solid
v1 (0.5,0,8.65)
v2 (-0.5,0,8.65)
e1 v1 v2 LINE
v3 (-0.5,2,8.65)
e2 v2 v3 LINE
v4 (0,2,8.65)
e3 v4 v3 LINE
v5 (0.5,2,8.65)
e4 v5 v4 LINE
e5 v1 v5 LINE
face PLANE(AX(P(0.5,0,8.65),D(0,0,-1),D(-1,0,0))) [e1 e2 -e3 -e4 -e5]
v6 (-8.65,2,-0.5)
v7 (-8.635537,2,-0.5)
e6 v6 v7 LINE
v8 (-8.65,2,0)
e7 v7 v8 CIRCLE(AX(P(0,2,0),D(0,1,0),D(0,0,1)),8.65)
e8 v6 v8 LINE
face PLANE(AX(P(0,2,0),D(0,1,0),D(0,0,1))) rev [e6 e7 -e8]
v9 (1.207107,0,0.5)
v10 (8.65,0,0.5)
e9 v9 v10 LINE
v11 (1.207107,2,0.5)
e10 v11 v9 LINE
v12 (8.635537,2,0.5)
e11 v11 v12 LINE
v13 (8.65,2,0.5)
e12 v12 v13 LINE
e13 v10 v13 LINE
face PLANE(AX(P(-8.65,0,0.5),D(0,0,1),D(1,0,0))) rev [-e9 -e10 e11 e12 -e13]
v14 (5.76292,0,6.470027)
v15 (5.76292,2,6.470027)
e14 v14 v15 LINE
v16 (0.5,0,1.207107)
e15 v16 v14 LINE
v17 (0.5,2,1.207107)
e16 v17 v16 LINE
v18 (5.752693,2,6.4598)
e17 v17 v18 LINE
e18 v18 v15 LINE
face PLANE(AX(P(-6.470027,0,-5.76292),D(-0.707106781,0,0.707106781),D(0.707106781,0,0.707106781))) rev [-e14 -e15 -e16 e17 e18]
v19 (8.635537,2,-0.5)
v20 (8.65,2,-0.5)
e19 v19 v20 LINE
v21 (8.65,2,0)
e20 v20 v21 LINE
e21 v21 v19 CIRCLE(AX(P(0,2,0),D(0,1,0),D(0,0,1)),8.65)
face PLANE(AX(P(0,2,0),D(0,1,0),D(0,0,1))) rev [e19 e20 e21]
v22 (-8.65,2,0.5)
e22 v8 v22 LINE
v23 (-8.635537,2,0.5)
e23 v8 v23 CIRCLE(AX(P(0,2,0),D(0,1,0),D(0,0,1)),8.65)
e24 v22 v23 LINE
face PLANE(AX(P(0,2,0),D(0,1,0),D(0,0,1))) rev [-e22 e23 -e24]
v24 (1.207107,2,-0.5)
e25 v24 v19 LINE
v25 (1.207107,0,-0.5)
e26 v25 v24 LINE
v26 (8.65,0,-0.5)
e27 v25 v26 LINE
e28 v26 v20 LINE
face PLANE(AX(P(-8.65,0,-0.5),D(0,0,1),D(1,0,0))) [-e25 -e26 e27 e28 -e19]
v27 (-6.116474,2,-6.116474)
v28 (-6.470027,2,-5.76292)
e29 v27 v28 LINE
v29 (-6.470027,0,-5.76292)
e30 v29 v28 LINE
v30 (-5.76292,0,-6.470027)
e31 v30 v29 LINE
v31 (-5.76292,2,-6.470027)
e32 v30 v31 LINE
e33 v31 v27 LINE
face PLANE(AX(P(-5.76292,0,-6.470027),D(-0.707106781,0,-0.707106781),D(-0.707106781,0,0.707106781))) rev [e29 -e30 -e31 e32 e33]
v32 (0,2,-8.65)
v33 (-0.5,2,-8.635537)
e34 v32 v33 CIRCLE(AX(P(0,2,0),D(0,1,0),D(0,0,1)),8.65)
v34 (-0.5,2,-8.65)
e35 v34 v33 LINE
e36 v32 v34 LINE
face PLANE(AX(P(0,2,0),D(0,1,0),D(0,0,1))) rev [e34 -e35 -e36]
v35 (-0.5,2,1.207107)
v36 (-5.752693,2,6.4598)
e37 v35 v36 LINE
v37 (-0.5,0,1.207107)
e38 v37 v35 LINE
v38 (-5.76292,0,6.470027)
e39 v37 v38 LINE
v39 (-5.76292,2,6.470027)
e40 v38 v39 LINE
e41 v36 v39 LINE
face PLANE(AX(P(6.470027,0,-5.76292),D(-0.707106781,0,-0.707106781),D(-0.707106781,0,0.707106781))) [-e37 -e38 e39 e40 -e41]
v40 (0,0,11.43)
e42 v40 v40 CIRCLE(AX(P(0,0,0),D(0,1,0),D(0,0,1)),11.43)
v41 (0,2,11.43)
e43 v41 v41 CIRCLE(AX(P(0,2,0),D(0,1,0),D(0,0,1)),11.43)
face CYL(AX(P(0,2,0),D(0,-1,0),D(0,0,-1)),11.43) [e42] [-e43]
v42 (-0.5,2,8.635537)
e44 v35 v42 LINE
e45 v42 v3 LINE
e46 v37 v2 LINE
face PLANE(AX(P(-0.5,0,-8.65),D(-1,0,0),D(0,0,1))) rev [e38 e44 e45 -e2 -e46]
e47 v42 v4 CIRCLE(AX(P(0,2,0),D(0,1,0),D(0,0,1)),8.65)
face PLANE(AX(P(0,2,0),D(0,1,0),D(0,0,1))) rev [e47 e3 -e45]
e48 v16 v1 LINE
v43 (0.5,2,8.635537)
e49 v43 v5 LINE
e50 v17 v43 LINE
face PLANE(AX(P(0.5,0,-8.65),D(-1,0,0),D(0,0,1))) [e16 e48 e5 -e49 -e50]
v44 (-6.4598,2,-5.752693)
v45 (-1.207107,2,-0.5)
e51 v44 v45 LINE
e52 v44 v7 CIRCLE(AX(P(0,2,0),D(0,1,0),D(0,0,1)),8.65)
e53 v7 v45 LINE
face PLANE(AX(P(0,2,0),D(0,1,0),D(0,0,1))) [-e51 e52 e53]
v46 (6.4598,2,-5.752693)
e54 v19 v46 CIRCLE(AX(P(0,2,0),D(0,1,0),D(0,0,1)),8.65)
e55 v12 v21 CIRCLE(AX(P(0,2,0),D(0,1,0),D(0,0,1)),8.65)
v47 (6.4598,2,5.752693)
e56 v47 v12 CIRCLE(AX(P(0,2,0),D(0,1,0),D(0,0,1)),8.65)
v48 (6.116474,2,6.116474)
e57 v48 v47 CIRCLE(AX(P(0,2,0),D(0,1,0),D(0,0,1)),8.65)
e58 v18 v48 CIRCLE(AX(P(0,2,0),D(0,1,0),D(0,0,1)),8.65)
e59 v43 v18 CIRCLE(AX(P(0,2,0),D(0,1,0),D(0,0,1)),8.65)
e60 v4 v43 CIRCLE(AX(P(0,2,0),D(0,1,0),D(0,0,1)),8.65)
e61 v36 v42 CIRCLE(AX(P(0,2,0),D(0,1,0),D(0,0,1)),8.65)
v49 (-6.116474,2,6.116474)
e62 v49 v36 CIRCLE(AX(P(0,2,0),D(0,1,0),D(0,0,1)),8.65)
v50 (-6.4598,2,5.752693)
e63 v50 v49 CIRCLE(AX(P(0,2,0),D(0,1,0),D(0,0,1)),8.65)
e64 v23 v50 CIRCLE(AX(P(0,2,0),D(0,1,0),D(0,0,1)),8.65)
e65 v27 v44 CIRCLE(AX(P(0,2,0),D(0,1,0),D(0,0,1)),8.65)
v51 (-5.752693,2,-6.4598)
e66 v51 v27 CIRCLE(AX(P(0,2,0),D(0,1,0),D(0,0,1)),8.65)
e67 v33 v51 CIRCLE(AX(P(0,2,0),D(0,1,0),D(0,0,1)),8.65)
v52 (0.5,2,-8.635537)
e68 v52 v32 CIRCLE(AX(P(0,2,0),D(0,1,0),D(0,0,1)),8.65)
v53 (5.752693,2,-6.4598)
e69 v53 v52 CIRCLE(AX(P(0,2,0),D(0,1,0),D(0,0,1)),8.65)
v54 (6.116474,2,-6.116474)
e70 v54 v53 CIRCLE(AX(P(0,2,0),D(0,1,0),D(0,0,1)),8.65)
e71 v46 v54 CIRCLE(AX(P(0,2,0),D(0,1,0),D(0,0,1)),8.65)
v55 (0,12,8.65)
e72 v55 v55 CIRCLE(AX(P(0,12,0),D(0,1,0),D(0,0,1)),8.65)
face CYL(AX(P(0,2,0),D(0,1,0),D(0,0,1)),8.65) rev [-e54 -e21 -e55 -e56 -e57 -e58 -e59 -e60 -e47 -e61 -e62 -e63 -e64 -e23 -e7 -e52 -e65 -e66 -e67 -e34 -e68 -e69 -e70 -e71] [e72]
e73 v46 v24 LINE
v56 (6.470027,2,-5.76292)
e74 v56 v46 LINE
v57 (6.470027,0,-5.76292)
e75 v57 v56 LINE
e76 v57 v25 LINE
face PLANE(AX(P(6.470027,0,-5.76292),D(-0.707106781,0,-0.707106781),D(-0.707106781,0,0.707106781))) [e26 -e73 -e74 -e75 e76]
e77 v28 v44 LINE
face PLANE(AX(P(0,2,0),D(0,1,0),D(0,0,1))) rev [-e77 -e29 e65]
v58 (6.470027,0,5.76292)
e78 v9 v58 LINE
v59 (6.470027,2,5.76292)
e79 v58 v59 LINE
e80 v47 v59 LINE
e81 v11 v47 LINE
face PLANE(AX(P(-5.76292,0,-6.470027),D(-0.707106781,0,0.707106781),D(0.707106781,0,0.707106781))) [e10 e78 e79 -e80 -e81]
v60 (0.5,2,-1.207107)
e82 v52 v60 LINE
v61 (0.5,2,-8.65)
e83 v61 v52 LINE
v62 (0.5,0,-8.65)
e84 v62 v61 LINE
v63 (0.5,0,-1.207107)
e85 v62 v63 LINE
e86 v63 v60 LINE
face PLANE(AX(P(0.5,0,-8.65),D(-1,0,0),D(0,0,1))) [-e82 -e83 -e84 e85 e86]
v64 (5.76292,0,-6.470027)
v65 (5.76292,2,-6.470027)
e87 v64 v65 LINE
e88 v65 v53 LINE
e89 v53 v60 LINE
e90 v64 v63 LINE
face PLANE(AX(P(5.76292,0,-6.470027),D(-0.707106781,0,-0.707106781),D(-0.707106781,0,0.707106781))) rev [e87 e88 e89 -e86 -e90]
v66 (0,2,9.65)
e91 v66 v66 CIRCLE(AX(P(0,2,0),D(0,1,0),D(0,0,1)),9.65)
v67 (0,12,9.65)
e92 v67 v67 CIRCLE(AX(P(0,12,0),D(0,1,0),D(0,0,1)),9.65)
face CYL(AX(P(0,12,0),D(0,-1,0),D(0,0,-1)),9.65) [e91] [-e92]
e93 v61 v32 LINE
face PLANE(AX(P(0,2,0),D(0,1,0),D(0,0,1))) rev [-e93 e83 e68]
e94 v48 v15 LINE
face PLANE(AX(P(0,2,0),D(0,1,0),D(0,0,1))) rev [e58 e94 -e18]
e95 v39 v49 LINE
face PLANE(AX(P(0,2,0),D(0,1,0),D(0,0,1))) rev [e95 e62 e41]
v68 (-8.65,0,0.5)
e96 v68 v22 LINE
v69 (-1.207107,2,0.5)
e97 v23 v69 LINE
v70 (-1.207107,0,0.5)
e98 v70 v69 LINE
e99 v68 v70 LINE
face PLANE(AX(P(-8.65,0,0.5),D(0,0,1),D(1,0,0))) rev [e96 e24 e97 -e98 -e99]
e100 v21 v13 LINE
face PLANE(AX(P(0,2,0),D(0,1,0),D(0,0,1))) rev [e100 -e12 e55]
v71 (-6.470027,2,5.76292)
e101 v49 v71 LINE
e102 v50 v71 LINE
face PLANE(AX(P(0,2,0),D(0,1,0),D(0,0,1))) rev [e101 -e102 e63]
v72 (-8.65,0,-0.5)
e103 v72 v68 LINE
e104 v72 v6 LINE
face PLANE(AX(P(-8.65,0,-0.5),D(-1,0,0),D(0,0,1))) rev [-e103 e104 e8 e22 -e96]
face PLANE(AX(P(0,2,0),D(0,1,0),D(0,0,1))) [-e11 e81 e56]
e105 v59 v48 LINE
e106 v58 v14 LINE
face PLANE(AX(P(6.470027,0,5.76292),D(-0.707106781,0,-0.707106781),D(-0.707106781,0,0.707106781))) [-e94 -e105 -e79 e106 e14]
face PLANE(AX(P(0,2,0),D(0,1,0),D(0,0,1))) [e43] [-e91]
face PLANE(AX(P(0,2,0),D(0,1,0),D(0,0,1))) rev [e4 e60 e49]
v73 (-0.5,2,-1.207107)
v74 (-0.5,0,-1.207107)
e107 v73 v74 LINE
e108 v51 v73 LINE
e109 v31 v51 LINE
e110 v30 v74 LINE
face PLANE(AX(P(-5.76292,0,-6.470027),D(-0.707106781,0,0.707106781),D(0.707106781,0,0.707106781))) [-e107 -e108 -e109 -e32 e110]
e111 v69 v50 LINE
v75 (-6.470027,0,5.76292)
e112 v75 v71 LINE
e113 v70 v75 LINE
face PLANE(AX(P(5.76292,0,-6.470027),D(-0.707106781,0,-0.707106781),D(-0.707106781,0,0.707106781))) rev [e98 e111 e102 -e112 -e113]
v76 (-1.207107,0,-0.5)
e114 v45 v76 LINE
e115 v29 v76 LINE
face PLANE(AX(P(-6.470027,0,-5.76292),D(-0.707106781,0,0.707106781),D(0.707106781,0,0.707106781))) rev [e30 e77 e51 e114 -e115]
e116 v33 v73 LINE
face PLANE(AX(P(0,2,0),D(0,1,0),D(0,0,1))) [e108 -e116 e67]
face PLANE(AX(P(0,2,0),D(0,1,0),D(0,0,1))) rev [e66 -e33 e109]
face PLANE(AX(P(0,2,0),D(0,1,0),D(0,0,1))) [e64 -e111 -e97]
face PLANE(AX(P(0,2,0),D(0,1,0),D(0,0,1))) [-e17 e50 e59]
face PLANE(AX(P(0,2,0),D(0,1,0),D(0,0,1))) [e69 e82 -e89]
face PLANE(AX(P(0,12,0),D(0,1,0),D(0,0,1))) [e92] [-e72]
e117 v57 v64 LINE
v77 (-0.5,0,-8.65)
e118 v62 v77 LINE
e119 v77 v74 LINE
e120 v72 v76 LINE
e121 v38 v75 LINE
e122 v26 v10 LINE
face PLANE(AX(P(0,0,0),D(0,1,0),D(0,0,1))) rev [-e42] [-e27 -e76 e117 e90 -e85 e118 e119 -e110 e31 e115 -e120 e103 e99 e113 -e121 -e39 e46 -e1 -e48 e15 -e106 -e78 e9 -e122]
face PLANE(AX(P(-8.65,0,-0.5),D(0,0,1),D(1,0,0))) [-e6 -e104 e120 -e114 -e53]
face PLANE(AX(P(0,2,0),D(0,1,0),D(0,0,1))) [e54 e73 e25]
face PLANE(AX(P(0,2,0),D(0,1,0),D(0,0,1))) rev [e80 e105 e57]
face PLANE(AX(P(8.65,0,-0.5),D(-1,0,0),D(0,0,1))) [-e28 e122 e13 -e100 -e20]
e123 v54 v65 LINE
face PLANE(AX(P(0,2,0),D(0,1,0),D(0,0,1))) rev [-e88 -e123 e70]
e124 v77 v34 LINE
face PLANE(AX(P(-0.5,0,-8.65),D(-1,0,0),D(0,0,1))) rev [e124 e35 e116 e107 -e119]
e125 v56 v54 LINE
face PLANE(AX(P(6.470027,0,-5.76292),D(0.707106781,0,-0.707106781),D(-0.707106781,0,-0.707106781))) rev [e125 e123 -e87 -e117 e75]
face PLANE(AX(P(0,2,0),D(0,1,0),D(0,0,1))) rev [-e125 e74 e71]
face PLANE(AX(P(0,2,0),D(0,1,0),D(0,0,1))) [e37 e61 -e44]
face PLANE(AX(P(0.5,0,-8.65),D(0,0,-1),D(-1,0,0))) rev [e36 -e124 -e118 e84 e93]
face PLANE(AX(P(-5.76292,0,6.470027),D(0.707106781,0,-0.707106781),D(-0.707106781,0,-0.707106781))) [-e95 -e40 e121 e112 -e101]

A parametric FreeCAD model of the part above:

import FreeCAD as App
import Part
import Sketcher

V = App.Vector
Q = App.Units.Quantity

doc = App.newDocument("Part")
body = doc.addObject("PartDesign::Body", "Body")

# Sketch on XZ plane
sketch1 = body.newObject("Sketcher::SketchObject", "Sketch")
sketch1.AttachmentSupport = (doc.getObject("XZ_Plane"), [""])
sketch1.MapMode = "FlatFace"
sketch1.addGeometry(Part.Circle(V(0, 0, 0), V(0, 0, 1), 11), False)
sketch1.addConstraint([
    Sketcher.Constraint("Coincident", 0, 3, -1, 1),
    Sketcher.Constraint("Diameter", 0, Q("22.86 mm")),
])
pad1 = body.newObject("PartDesign::Pad", "Pad")
pad1.Profile = sketch1
pad1.Length = 2
pad1.Reversed = True

# Sketch on XZ plane
sketch2 = body.newObject("Sketcher::SketchObject", "Sketch001")
sketch2.AttachmentSupport = (doc.getObject("XZ_Plane"), [""])
sketch2.MapMode = "FlatFace"
sketch2.AttachmentOffset = App.Placement(V(0, 0, -2), App.Rotation())
sketch2.addGeometry([
    Part.LineSegment(V(-0.5, -8.7, 0), V(-0.5, -1.2, 0)),  # 0
    Part.LineSegment(V(-0.5, -1.2, 0), V(-5.8, -6.5, 0)),  # 1
    Part.LineSegment(V(-5.8, -6.5, 0), V(-6.5, -5.8, 0)),  # 2
    Part.LineSegment(V(-6.5, -5.8, 0), V(-1.2, -0.5, 0)),  # 3
    Part.LineSegment(V(-1.2, -0.5, 0), V(-8.7, -0.5, 0)),  # 4
    Part.LineSegment(V(-8.7, -0.5, 0), V(-8.7, 0.5, 0)),  # 5
    Part.LineSegment(V(-8.7, 0.5, 0), V(-1.2, 0.5, 0)),  # 6
    Part.LineSegment(V(-1.2, 0.5, 0), V(-6.5, 5.8, 0)),  # 7
    Part.LineSegment(V(-6.5, 5.8, 0), V(-5.8, 6.5, 0)),  # 8
    Part.LineSegment(V(-5.8, 6.5, 0), V(-0.5, 1.2, 0)),  # 9
    Part.LineSegment(V(-0.5, 1.2, 0), V(-0.5, 8.7, 0)),  # 10
    Part.LineSegment(V(-0.5, 8.7, 0), V(0.5, 8.7, 0)),  # 11
    Part.LineSegment(V(0.5, 8.7, 0), V(0.5, 1.2, 0)),  # 12
    Part.LineSegment(V(0.5, 1.2, 0), V(5.8, 6.5, 0)),  # 13
    Part.LineSegment(V(5.8, 6.5, 0), V(6.5, 5.8, 0)),  # 14
    Part.LineSegment(V(6.5, 5.8, 0), V(1.2, 0.5, 0)),  # 15
    Part.LineSegment(V(1.2, 0.5, 0), V(8.7, 0.5, 0)),  # 16
    Part.LineSegment(V(8.7, 0.5, 0), V(8.7, -0.5, 0)),  # 17
    Part.LineSegment(V(8.7, -0.5, 0), V(1.2, -0.5, 0)),  # 18
    Part.LineSegment(V(1.2, -0.5, 0), V(6.5, -5.8, 0)),  # 19
    Part.LineSegment(V(6.5, -5.8, 0), V(5.8, -6.5, 0)),  # 20
    Part.LineSegment(V(5.8, -6.5, 0), V(0.5, -1.2, 0)),  # 21
    Part.LineSegment(V(0.5, -1.2, 0), V(0.5, -8.7, 0)),  # 22
    Part.LineSegment(V(0.5, -8.7, 0), V(-0.5, -8.7, 0)),  # 23
], False)
sketch2.addConstraint([
    Sketcher.Constraint("Coincident", 0, 2, 1, 1),
    Sketcher.Constraint("Coincident", 1, 2, 2, 1),
    Sketcher.Constraint("Coincident", 2, 2, 3, 1),
    Sketcher.Constraint("Coincident", 3, 2, 4, 1),
    Sketcher.Constraint("Coincident", 4, 2, 5, 1),
    Sketcher.Constraint("Coincident", 5, 2, 6, 1),
    Sketcher.Constraint("Coincident", 6, 2, 7, 1),
    Sketcher.Constraint("Coincident", 7, 2, 8, 1),
    Sketcher.Constraint("Coincident", 8, 2, 9, 1),
    Sketcher.Constraint("Coincident", 9, 2, 10, 1),
    Sketcher.Constraint("Coincident", 10, 2, 11, 1),
    Sketcher.Constraint("Coincident", 11, 2, 12, 1),
    Sketcher.Constraint("Coincident", 12, 2, 13, 1),
    Sketcher.Constraint("Coincident", 13, 2, 14, 1),
    Sketcher.Constraint("Coincident", 14, 2, 15, 1),
    Sketcher.Constraint("Coincident", 15, 2, 16, 1),
    Sketcher.Constraint("Coincident", 16, 2, 17, 1),
    Sketcher.Constraint("Coincident", 17, 2, 18, 1),
    Sketcher.Constraint("Coincident", 18, 2, 19, 1),
    Sketcher.Constraint("Coincident", 19, 2, 20, 1),
    Sketcher.Constraint("Coincident", 20, 2, 21, 1),
    Sketcher.Constraint("Coincident", 21, 2, 22, 1),
    Sketcher.Constraint("Coincident", 22, 2, 23, 1),
    Sketcher.Constraint("Coincident", 23, 2, 0, 1),
    Sketcher.Constraint("Vertical", 0),
    Sketcher.Constraint("Horizontal", 4),
    Sketcher.Constraint("Vertical", 5),
    Sketcher.Constraint("Horizontal", 6),
    Sketcher.Constraint("Vertical", 10),
    Sketcher.Constraint("Horizontal", 11),
    Sketcher.Constraint("Vertical", 12),
    Sketcher.Constraint("Horizontal", 16),
    Sketcher.Constraint("Vertical", 17),
    Sketcher.Constraint("Horizontal", 18),
    Sketcher.Constraint("Vertical", 22),
    Sketcher.Constraint("Horizontal", 23),
    Sketcher.Constraint("Symmetric", 0, 2, 12, 2, -1, 1),
    Sketcher.Constraint("Symmetric", 1, 2, 13, 2, -1, 1),
    Sketcher.Constraint("Symmetric", 2, 2, 14, 2, -1, 1),
    Sketcher.Constraint("Symmetric", 3, 2, 15, 2, -1, 1),
    Sketcher.Constraint("Symmetric", 5, 2, 17, 2, -1, 1),
    Sketcher.Constraint("Symmetric", 7, 2, 19, 2, -1, 1),
    Sketcher.Constraint("Symmetric", 8, 2, 20, 2, -1, 1),
    Sketcher.Constraint("Symmetric", 9, 2, 21, 2, -1, 1),
    Sketcher.Constraint("Symmetric", 9, 2, 12, 2, -2),
    Sketcher.Constraint("Symmetric", 8, 2, 13, 2, -2),
    Sketcher.Constraint("Symmetric", 7, 2, 14, 2, -2),
    Sketcher.Constraint("Symmetric", 6, 2, 15, 2, -2),
    Sketcher.Constraint("Perpendicular", 1, 2),
    Sketcher.Constraint("Perpendicular", 2, 3),
    Sketcher.Constraint("Perpendicular", 3, 7),
    Sketcher.Constraint("Perpendicular", 15, 19),
    Sketcher.Constraint("Equal", 18, 0),
    Sketcher.Constraint("Equal", 23, 5),
    Sketcher.Constraint("Equal", 0, 10),
    Sketcher.Constraint("Equal", 1, 3),
    Sketcher.Constraint("DistanceX", 11, 1, 11, 2, Q("1 mm")),
    Sketcher.Constraint("Distance", 2, Q("1 mm")),
    Sketcher.Constraint("DistanceX", 4, 2, -1, 1, Q("8.65 mm")),
    Sketcher.Constraint("DistanceX", 1, 2, -1, 1, Q("5.76292 mm")),
])
pocket1 = body.newObject("PartDesign::Pocket", "Pocket")
pocket1.Profile = sketch2
pocket1.Length = 2
pocket1.Reversed = True

# Sketch on XZ plane
sketch3 = body.newObject("Sketcher::SketchObject", "Sketch002")
sketch3.AttachmentSupport = (doc.getObject("XZ_Plane"), [""])
sketch3.MapMode = "FlatFace"
sketch3.AttachmentOffset = App.Placement(V(0, 0, -2), App.Rotation())
sketch3.addGeometry(Part.Circle(V(0, 0, 0), V(0, 0, 1), 10), False)
sketch3.addConstraint([
    Sketcher.Constraint("Coincident", 0, 3, -1, 1),
    Sketcher.Constraint("Diameter", 0, Q("19.3 mm")),
])
pad2 = body.newObject("PartDesign::Pad", "Pad001")
pad2.Profile = sketch3
pad2.Length = 10
pad2.Reversed = True

# Sketch on XZ plane
sketch4 = body.newObject("Sketcher::SketchObject", "Sketch003")
sketch4.AttachmentSupport = (doc.getObject("XZ_Plane"), [""])
sketch4.MapMode = "FlatFace"
sketch4.AttachmentOffset = App.Placement(V(0, 0, -12), App.Rotation())
sketch4.addGeometry(Part.Circle(V(0, 0, 0), V(0, 0, 1), 9), False)
sketch4.addConstraint([
    Sketcher.Constraint("Coincident", 0, 3, -1, 1),
    Sketcher.Constraint("Diameter", 0, Q("17.3 mm")),
])
pocket2 = body.newObject("PartDesign::Pocket", "Pocket001")
pocket2.Profile = sketch4
pocket2.Length = 10
pocket2.Reversed = True

doc.recompute()
